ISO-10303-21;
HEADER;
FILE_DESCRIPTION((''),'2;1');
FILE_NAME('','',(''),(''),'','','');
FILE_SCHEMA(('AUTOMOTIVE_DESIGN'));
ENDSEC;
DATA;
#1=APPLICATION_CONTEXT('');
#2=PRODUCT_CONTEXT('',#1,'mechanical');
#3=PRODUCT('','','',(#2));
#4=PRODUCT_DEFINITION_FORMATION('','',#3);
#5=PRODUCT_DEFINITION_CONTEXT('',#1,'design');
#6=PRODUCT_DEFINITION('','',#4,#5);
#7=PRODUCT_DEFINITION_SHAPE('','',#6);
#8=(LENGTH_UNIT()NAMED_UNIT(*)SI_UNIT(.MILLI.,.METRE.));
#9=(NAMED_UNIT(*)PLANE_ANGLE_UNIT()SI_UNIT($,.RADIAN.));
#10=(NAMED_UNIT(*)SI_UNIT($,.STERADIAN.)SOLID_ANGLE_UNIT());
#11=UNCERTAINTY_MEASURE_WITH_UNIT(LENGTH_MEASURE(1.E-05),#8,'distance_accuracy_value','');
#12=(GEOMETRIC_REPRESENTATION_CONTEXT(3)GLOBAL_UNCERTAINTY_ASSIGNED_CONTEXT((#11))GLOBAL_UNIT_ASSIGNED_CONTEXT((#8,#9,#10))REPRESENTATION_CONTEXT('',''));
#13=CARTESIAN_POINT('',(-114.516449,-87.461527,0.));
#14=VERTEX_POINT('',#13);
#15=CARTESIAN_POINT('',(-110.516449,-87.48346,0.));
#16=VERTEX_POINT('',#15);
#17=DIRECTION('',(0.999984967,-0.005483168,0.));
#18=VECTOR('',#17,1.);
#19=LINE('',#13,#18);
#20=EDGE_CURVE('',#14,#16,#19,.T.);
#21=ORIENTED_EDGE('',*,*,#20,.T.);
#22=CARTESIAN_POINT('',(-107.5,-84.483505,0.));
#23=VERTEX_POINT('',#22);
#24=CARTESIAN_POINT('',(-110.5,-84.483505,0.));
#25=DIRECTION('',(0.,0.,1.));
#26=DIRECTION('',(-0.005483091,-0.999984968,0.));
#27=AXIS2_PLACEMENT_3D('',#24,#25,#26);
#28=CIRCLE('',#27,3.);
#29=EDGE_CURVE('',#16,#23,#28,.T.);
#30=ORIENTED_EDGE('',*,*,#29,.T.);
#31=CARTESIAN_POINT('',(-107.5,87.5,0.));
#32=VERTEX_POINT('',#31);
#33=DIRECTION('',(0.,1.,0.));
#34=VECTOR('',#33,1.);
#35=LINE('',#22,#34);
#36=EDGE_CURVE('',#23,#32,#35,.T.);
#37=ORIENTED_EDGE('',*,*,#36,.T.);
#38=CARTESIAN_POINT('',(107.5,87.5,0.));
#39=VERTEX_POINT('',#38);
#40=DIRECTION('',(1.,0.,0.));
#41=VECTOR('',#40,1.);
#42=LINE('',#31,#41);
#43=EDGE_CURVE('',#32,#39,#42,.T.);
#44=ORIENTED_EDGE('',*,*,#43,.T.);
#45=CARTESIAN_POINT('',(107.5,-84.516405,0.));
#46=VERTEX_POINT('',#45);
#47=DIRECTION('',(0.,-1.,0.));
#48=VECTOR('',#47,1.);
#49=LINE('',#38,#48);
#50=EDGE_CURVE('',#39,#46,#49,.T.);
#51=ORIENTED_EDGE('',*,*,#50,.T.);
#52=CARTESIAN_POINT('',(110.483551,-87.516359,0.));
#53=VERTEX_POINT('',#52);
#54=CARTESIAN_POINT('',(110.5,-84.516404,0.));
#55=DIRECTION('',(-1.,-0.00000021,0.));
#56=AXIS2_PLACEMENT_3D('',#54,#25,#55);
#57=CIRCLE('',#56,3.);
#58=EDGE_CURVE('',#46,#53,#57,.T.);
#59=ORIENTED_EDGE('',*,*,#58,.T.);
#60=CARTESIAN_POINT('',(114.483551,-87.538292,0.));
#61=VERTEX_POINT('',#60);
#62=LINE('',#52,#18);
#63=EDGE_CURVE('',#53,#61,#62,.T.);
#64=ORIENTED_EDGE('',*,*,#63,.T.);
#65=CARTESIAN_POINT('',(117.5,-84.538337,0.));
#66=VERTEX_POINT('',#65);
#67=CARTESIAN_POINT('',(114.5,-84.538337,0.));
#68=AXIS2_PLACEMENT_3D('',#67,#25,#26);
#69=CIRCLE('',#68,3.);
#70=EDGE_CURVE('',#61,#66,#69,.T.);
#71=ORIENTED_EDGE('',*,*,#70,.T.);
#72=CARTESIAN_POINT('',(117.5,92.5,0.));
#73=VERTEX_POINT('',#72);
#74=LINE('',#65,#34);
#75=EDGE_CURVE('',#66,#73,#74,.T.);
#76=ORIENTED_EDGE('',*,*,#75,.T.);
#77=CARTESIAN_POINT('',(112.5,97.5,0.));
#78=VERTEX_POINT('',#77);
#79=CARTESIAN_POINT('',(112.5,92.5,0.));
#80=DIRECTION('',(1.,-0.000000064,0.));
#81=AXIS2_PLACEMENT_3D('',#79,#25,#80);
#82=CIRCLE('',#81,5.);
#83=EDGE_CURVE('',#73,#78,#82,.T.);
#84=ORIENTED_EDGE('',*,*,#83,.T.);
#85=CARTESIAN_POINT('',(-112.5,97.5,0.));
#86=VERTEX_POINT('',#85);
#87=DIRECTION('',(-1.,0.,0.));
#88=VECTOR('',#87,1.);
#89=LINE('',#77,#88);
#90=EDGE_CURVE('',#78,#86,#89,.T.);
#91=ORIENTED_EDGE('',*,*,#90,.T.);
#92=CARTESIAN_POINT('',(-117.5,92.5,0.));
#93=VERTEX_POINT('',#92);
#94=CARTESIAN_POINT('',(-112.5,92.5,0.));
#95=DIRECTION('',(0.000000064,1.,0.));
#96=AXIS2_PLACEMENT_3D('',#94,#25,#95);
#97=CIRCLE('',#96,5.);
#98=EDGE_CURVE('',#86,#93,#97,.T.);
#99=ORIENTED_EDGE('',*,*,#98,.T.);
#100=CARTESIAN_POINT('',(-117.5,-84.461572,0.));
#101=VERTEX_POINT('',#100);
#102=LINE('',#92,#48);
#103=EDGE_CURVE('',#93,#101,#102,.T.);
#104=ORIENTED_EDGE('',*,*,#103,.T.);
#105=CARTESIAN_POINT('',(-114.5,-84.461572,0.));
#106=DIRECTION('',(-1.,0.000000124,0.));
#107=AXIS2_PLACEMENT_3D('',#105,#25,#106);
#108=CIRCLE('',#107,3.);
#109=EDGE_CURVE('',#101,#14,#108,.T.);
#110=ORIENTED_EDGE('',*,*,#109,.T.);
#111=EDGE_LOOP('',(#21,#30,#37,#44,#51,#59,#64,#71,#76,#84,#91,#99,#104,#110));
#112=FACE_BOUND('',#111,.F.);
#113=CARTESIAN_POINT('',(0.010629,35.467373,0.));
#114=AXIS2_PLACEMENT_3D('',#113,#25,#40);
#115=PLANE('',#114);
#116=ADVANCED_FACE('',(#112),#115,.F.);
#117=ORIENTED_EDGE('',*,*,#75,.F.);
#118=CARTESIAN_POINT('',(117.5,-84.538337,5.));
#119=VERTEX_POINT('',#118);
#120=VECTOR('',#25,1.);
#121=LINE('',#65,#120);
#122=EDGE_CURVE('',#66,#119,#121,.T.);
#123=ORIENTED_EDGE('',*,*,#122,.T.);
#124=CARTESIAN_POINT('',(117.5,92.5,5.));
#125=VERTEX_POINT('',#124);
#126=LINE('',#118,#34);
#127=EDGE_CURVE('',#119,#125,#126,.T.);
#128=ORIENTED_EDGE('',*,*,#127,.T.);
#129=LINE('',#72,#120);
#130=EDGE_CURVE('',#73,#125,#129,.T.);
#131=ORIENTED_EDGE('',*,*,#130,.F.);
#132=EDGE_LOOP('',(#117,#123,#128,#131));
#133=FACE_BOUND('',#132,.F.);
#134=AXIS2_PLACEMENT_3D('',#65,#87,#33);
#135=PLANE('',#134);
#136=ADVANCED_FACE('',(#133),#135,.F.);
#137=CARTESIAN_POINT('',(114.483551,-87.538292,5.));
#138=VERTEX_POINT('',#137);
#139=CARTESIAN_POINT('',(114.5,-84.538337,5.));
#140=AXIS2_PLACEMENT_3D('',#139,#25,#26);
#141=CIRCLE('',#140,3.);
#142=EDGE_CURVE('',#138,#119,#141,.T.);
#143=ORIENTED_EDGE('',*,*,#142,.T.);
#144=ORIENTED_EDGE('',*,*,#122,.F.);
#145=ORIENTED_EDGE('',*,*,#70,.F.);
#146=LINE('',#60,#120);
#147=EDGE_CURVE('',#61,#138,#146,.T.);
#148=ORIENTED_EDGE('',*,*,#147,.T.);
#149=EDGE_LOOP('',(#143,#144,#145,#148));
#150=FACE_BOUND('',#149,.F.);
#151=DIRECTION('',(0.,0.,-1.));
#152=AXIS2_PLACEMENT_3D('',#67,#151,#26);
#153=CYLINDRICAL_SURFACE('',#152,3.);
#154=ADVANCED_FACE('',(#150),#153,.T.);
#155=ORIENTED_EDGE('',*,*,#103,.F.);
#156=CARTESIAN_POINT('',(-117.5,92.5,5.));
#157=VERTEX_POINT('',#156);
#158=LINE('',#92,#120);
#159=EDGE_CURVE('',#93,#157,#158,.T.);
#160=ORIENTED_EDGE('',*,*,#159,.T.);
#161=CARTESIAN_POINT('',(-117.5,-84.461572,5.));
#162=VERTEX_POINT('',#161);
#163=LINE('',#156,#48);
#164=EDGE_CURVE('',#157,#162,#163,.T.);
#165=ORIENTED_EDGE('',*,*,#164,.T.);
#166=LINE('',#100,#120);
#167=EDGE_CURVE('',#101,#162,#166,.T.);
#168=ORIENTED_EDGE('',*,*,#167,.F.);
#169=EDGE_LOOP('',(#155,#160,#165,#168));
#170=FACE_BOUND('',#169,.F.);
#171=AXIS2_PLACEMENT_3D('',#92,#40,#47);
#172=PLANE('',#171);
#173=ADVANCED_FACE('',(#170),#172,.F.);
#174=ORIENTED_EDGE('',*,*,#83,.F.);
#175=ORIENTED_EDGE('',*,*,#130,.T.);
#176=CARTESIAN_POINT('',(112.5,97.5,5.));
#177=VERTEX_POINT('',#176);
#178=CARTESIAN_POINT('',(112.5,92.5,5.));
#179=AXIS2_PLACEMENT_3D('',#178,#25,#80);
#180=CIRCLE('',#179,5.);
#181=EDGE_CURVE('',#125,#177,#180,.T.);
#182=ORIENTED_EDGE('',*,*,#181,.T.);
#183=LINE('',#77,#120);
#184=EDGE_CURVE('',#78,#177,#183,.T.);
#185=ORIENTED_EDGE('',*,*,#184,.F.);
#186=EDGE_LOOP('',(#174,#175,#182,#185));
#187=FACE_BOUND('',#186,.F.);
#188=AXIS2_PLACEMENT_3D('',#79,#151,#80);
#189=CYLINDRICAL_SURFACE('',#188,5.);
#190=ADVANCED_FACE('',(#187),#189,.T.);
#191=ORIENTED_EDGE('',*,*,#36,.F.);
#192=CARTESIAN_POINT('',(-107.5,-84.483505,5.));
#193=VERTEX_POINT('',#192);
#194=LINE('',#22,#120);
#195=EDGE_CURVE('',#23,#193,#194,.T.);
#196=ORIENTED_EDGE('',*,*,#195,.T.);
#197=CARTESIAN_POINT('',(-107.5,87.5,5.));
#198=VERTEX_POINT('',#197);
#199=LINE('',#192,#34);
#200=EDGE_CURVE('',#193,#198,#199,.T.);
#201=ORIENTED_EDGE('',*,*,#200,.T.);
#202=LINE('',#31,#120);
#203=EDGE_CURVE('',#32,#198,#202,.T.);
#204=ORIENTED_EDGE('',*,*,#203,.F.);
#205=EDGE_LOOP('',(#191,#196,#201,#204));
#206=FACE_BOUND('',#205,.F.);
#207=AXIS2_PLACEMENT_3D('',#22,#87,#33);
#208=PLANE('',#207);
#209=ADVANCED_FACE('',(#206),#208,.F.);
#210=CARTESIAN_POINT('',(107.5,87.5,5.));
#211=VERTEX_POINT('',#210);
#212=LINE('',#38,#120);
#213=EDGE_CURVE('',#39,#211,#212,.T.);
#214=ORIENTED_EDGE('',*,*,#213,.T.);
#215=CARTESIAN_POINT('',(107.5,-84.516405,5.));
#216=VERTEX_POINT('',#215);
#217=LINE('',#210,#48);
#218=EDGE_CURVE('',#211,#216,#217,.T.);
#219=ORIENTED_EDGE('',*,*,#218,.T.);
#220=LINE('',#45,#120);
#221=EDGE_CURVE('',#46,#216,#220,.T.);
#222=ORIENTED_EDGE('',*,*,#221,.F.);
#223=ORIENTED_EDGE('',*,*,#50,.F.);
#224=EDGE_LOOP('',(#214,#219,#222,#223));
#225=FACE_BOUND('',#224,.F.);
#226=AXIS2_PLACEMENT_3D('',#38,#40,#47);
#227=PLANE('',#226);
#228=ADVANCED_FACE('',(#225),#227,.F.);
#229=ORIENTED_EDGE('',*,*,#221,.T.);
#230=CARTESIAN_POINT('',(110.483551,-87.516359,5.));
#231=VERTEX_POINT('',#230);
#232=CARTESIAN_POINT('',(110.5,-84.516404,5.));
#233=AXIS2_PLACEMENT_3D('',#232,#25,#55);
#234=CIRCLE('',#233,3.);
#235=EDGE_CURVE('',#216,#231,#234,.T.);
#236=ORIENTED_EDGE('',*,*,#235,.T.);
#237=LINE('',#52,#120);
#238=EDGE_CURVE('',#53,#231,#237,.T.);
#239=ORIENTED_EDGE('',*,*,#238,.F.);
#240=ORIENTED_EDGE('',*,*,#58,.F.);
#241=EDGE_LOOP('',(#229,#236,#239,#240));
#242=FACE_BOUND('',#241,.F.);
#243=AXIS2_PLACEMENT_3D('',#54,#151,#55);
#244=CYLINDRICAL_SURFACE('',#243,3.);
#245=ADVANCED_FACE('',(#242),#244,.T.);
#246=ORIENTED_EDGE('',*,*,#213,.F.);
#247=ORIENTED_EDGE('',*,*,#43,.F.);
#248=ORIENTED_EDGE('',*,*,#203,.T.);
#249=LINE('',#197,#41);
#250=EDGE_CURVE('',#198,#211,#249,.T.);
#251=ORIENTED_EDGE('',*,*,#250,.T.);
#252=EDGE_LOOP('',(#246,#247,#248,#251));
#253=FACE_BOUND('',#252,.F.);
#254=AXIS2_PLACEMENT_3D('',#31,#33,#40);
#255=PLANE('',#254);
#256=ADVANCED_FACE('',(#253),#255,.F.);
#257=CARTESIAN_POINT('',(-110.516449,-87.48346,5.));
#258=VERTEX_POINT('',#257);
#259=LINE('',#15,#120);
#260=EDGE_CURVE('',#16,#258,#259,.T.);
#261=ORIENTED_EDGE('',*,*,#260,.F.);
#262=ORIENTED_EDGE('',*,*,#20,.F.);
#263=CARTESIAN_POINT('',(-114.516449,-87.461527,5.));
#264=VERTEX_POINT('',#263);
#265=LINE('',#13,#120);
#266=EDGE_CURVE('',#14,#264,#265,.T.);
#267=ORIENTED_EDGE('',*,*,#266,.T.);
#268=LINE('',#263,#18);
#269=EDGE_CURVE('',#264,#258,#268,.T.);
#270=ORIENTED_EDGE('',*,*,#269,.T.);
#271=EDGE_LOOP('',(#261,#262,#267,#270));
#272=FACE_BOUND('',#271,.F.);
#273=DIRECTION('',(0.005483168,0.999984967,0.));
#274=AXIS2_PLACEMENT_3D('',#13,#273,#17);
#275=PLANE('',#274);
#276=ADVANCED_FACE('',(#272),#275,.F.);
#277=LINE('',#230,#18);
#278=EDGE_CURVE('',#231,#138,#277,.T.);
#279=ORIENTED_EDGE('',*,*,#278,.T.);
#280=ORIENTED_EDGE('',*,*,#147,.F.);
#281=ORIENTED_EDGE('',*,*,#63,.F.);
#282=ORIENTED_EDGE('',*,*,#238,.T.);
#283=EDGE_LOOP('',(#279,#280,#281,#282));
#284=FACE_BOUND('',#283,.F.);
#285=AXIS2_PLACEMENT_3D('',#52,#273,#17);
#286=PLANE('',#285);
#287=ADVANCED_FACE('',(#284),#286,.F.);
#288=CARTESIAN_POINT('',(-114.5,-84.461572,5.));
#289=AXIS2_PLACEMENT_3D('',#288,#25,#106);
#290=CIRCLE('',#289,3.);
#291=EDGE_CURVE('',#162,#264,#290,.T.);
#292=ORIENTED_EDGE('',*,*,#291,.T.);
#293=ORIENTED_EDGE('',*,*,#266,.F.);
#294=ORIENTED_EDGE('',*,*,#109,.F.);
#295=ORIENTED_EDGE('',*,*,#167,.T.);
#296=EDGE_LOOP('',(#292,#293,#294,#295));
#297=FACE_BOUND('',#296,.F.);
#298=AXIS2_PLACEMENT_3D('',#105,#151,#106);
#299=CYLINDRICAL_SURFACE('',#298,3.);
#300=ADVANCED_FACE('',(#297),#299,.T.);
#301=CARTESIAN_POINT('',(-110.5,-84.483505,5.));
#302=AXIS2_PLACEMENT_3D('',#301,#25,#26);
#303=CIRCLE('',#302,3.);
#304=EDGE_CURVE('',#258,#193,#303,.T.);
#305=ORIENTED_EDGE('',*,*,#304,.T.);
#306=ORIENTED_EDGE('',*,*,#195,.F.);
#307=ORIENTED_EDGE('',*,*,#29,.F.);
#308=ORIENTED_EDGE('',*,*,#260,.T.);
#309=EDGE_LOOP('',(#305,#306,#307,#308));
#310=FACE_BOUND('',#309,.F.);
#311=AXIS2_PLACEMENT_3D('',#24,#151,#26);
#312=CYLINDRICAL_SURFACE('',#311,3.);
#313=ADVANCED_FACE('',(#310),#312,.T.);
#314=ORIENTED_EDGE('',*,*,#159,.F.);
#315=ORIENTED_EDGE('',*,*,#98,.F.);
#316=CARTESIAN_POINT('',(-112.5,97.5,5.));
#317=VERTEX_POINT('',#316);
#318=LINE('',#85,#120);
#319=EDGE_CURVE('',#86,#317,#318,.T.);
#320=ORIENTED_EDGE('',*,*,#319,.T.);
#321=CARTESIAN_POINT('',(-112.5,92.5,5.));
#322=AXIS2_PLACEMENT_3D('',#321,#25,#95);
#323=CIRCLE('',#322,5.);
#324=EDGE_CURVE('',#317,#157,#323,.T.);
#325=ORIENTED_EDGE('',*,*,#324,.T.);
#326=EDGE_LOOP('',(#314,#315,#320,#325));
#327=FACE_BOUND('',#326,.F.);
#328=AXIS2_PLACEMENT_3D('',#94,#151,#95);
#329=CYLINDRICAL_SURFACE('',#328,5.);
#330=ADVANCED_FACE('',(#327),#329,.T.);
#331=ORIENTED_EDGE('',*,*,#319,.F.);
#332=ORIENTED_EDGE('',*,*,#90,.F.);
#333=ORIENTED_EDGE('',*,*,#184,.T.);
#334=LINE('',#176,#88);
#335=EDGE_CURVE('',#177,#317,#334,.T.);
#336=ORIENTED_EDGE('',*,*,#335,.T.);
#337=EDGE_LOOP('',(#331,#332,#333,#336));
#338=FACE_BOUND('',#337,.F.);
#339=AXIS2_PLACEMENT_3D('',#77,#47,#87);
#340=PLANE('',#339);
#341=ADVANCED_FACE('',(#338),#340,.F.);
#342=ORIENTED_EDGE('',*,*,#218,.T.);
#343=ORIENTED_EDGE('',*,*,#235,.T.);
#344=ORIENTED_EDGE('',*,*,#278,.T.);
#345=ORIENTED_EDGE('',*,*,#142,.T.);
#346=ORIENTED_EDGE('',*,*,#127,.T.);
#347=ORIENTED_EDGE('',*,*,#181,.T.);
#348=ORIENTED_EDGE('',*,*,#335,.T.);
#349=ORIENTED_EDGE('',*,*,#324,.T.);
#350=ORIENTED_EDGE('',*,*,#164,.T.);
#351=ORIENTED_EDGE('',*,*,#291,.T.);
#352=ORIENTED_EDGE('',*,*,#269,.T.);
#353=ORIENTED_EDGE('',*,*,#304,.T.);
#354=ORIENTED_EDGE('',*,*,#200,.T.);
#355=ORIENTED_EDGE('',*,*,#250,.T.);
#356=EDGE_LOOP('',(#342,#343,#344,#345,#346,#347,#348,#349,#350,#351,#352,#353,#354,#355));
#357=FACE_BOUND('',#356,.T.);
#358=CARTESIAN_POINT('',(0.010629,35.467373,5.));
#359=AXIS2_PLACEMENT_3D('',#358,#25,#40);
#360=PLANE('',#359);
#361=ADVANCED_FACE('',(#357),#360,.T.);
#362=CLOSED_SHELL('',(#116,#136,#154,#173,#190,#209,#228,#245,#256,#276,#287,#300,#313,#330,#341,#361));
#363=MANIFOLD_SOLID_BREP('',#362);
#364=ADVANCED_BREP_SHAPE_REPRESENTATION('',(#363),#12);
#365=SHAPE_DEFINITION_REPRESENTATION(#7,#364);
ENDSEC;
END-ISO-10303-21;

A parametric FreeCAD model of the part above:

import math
import FreeCAD as App
import Part
import Sketcher

V = App.Vector

doc = App.newDocument("Part")
body = doc.addObject("PartDesign::Body", "Body")

# Sketch on XY plane
sketch1 = doc.addObject("Sketcher::SketchObject", "Sketch")
body.addObject(sketch1)
sketch1.AttachmentSupport = (doc.XY_Plane, [""])
sketch1.MapMode = "FlatFace"
sketch1.addGeometry(Part.LineSegment(V(-107.5, 87.5, 0), V(107.5, 87.5, 0)), False)
sketch1.addGeometry(Part.LineSegment(V(107.5, 87.5, 0), V(107.5, -84.516405, 0)), False)
sketch1.addGeometry(Part.ArcOfCircle(Part.Circle(V(110.5, -84.516404, 0), V(0, 0, 1), 3), math.radians(-179.999988), math.radians(-90.314149)), False)
sketch1.addGeometry(Part.LineSegment(V(110.483551, -87.516359, 0), V(114.483551, -87.538292, 0)), False)
sketch1.addGeometry(Part.ArcOfCircle(Part.Circle(V(114.5, -84.538337, 0), V(0, 0, 1), 3), math.radians(-90.31416), math.radians(0.000007)), False)
sketch1.addGeometry(Part.LineSegment(V(117.5, -84.538337, 0), V(117.5, 92.5, 0)), False)
sketch1.addGeometry(Part.ArcOfCircle(Part.Circle(V(112.5, 92.5, 0), V(0, 0, 1), 5), math.radians(-0.000004), math.radians(90.000004)), False)
sketch1.addGeometry(Part.LineSegment(V(112.5, 97.5, 0), V(-112.5, 97.5, 0)), False)
sketch1.addGeometry(Part.ArcOfCircle(Part.Circle(V(-112.5, 92.5, 0), V(0, 0, 1), 5), math.radians(89.999996), math.radians(180.000004)), False)
sketch1.addGeometry(Part.LineSegment(V(-117.5, 92.5, 0), V(-117.5, -84.461572, 0)), False)
sketch1.addGeometry(Part.ArcOfCircle(Part.Circle(V(-114.5, -84.461572, 0), V(0, 0, 1), 3), math.radians(179.999993), math.radians(269.685851)), False)
sketch1.addGeometry(Part.LineSegment(V(-114.516449, -87.461527, 0), V(-110.516449, -87.48346, 0)), False)
sketch1.addGeometry(Part.ArcOfCircle(Part.Circle(V(-110.5, -84.483505, 0), V(0, 0, 1), 3), math.radians(-90.31416), math.radians(0.000007)), False)
sketch1.addGeometry(Part.LineSegment(V(-107.5, -84.483505, 0), V(-107.5, 87.5, 0)), False)
sketch1.addConstraint(Sketcher.Constraint("Coincident", 0, 2, 1, 1))
sketch1.addConstraint(Sketcher.Constraint("Tangent", 1, 2, 2, 1))
sketch1.addConstraint(Sketcher.Constraint("Tangent", 2, 2, 3, 1))
sketch1.addConstraint(Sketcher.Constraint("Tangent", 3, 2, 4, 1))
sketch1.addConstraint(Sketcher.Constraint("Tangent", 4, 2, 5, 1))
sketch1.addConstraint(Sketcher.Constraint("Tangent", 5, 2, 6, 1))
sketch1.addConstraint(Sketcher.Constraint("Tangent", 6, 2, 7, 1))
sketch1.addConstraint(Sketcher.Constraint("Tangent", 7, 2, 8, 1))
sketch1.addConstraint(Sketcher.Constraint("Tangent", 8, 2, 9, 1))
sketch1.addConstraint(Sketcher.Constraint("Tangent", 9, 2, 10, 1))
sketch1.addConstraint(Sketcher.Constraint("Tangent", 10, 2, 11, 1))
sketch1.addConstraint(Sketcher.Constraint("Tangent", 11, 2, 12, 1))
sketch1.addConstraint(Sketcher.Constraint("Tangent", 12, 2, 13, 1))
sketch1.addConstraint(Sketcher.Constraint("Coincident", 13, 2, 0, 1))
sketch1.addConstraint(Sketcher.Constraint("Horizontal", 0))
sketch1.addConstraint(Sketcher.Constraint("Vertical", 1))
sketch1.addConstraint(Sketcher.Constraint("Vertical", 5))
sketch1.addConstraint(Sketcher.Constraint("Horizontal", 7))
sketch1.addConstraint(Sketcher.Constraint("Vertical", 9))
sketch1.addConstraint(Sketcher.Constraint("Vertical", 13))
sketch1.addConstraint(Sketcher.Constraint("Equal", 2, 4))
sketch1.addConstraint(Sketcher.Constraint("Equal", 6, 8))
sketch1.addConstraint(Sketcher.Constraint("Equal", 4, 10))
sketch1.addConstraint(Sketcher.Constraint("Equal", 10, 12))
sketch1.addConstraint(Sketcher.Constraint("Parallel", 3, 11))
sketch1.addConstraint(Sketcher.Constraint("Equal", 3, 11))
sketch1.addConstraint(Sketcher.Constraint("Radius", 2, 3.0))
sketch1.addConstraint(Sketcher.Constraint("Radius", 6, 5.0))
sketch1.addConstraint(Sketcher.Constraint("DistanceX", 0, 1, 0, 2, 215.0))
sketch1.addConstraint(Sketcher.Constraint("DistanceX", 7, 2, 7, 1, 225.0))
sketch1.addConstraint(Sketcher.Constraint("DistanceY", 0, 2, 6, 3, 5.0))
sketch1.addConstraint(Sketcher.Constraint("DistanceX", -1, 1, 2, 3, 110.5))
sketch1.addConstraint(Sketcher.Constraint("DistanceY", -1, 1, 6, 3, 92.5))
sketch1.addConstraint(Sketcher.Constraint("DistanceY", 9, 2, 9, 1, 176.961572))
sketch1.addConstraint(Sketcher.Constraint("DistanceY", 2, 3, 12, 3, 0.032899))
sketch1.addConstraint(Sketcher.Constraint("DistanceY", 1, 2, 1, 1, 172.016405))
pad1 = doc.addObject("PartDesign::Pad", "Pad")
body.addObject(pad1)
pad1.Profile = sketch1
pad1.Length = 5

doc.recompute()
